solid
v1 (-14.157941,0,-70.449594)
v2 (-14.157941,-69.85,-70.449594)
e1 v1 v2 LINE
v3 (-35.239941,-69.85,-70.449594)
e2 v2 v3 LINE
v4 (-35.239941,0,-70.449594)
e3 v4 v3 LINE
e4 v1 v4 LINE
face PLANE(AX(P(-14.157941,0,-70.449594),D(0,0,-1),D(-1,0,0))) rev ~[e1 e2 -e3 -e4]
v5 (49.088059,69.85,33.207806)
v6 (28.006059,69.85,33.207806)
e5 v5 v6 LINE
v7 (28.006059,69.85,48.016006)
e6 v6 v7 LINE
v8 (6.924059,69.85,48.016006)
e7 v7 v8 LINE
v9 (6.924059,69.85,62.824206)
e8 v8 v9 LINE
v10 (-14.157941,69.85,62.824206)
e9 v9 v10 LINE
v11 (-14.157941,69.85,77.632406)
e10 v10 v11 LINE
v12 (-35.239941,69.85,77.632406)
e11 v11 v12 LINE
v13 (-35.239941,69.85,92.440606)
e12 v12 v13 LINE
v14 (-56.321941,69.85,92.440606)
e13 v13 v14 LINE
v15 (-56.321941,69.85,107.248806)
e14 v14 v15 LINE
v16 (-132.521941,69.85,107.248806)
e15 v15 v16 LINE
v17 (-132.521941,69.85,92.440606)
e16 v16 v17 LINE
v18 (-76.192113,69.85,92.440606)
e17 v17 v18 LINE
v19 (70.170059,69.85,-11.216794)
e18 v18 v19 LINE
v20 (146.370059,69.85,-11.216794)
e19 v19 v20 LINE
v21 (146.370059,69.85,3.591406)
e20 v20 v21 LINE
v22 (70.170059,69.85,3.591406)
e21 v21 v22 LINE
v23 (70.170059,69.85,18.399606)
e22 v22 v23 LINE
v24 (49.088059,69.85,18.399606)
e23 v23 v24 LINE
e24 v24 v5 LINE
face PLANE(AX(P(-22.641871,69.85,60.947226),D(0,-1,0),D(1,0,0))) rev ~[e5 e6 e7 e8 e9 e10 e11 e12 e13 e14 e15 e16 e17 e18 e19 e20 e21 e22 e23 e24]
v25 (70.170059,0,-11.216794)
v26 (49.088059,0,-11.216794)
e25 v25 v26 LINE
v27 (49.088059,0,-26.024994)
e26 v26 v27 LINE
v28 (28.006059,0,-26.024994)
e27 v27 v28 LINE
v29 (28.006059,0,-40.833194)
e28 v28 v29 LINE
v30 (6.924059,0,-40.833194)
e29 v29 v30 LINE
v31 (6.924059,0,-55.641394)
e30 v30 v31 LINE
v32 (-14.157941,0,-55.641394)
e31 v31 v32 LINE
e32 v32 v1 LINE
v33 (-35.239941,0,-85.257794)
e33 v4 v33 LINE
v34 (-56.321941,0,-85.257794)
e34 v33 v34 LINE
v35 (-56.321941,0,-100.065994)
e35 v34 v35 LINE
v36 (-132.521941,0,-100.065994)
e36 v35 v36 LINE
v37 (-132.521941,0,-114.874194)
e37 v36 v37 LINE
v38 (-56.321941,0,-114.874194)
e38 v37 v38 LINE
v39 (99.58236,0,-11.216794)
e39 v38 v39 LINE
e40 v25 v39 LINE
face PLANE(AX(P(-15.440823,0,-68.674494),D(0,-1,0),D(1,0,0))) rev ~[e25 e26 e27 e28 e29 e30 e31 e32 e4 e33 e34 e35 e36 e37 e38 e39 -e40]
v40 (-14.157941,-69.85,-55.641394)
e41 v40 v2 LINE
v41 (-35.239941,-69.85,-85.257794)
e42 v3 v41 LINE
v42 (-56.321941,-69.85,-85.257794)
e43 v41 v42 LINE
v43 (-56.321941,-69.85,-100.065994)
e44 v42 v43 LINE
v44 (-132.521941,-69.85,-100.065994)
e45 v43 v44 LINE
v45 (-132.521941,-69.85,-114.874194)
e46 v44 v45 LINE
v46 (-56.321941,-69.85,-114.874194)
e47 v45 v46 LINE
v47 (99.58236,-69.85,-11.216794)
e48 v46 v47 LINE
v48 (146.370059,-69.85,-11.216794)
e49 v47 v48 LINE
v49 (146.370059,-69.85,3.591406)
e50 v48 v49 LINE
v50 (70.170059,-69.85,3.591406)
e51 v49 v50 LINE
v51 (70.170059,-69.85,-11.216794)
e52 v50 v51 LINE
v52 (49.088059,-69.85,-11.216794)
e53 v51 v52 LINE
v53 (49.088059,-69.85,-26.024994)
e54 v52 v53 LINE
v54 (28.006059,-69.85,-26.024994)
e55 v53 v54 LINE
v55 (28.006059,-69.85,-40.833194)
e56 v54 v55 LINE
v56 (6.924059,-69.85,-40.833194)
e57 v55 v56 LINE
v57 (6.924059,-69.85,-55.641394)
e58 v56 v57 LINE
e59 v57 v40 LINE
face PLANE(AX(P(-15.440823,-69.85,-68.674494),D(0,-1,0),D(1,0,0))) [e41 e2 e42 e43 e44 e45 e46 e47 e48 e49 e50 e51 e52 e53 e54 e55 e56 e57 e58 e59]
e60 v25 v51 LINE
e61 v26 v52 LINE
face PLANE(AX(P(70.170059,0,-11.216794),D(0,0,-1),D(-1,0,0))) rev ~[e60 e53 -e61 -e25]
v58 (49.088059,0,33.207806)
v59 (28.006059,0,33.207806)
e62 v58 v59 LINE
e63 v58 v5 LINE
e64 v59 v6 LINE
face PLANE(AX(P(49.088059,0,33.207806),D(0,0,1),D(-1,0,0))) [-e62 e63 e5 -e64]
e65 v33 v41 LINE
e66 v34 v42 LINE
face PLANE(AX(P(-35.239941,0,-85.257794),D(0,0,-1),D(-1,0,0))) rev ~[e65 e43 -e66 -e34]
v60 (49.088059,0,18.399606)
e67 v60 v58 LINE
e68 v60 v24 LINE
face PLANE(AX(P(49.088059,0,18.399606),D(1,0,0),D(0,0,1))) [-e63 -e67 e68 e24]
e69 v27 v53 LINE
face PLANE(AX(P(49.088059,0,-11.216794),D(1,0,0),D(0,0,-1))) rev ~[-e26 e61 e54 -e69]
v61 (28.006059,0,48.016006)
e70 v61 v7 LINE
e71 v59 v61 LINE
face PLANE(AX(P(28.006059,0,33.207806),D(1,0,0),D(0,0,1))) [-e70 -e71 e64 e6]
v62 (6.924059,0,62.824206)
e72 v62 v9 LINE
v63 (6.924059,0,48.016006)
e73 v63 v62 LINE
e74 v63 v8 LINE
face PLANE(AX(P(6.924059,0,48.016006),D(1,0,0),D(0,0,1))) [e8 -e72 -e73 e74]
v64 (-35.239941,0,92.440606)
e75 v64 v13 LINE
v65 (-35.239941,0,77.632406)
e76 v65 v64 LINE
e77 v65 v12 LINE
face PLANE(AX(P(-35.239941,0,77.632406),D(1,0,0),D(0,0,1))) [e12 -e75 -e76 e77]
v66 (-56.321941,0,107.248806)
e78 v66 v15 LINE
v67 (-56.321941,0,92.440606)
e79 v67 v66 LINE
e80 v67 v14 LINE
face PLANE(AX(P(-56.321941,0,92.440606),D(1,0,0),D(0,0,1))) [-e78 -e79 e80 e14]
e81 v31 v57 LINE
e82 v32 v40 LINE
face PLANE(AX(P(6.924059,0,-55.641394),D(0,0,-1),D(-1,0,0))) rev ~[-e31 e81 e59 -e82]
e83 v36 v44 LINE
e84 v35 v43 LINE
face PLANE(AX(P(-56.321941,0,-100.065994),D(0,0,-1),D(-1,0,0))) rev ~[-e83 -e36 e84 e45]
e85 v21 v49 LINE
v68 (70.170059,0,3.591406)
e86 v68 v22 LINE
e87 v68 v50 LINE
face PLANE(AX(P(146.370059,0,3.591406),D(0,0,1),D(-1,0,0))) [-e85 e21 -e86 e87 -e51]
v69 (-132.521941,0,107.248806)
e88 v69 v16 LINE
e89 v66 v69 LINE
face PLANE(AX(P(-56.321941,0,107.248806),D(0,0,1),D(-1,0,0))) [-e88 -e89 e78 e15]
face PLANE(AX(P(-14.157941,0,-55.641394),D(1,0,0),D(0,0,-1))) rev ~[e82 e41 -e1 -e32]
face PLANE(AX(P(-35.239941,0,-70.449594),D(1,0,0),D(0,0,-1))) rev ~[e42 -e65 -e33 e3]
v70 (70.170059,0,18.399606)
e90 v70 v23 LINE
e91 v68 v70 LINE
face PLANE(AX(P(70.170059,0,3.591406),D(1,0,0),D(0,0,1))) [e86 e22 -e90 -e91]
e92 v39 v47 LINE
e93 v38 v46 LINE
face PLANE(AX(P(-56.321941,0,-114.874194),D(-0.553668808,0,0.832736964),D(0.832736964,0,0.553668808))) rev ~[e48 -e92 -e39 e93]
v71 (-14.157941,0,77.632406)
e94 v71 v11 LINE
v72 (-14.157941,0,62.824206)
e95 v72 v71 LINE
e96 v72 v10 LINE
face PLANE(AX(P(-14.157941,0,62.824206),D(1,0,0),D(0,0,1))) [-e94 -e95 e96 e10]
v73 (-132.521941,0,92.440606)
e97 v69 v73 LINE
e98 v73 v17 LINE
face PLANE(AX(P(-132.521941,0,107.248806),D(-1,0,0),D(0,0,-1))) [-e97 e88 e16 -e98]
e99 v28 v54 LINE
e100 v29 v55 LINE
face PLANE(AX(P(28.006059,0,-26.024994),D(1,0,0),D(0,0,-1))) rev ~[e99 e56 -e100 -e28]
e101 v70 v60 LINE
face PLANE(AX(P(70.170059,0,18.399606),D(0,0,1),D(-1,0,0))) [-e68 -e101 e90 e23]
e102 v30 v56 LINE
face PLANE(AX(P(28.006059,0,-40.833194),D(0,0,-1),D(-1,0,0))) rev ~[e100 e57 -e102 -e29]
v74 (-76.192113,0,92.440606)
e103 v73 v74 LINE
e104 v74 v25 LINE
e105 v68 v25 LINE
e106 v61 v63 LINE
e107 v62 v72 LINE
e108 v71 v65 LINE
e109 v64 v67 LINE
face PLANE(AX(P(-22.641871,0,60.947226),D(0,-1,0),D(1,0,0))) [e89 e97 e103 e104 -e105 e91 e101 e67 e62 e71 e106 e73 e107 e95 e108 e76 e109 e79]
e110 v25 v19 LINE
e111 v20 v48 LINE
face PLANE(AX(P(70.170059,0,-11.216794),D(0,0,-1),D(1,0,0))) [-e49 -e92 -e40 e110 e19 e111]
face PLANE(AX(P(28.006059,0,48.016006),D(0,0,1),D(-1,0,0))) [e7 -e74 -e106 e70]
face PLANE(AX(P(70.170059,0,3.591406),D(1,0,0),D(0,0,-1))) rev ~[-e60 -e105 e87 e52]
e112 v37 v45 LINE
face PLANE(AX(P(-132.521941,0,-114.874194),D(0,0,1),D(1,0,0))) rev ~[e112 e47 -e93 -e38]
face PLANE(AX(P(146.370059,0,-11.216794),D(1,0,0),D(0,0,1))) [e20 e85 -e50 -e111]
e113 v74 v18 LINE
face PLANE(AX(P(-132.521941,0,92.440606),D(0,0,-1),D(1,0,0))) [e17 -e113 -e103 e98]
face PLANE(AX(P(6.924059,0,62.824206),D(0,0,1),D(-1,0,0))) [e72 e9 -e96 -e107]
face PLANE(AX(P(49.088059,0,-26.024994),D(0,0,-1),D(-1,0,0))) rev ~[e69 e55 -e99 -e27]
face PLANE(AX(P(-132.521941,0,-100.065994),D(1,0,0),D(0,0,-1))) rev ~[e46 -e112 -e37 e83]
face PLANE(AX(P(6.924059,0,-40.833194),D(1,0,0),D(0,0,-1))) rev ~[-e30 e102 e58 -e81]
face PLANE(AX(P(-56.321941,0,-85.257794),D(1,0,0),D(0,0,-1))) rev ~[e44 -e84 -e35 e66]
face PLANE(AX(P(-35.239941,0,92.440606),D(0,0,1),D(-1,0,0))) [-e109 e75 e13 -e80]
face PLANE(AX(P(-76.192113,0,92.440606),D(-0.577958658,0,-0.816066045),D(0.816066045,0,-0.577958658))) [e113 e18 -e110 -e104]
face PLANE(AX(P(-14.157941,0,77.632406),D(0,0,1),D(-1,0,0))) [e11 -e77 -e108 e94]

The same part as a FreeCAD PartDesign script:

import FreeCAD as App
import Part
import Sketcher
Q = App.Units.Quantity


def add_polygon(sketch, points):
    """Adds a closed chain of lines whose ends are joined by coincident constraints."""
    first, n = sketch.GeometryCount, len(points)
    for a, b in zip(points, points[1:] + points[:1]):
        sketch.addGeometry(Part.LineSegment(App.Vector(*a, 0), App.Vector(*b, 0)), False)
    for i in range(n):
        sketch.addConstraint(Sketcher.Constraint("Coincident", first + i, 2, first + (i + 1) % n, 1))

doc = App.newDocument("Part")
body = doc.addObject("PartDesign::Body", "Body")

sketch1 = doc.addObject("Sketcher::SketchObject", "Sketch")
body.addObject(sketch1)
sketch1.AttachmentSupport = (doc.XZ_Plane, [""])
sketch1.MapMode = "FlatFace"
add_polygon(sketch1, [(-132.521941, -100.065994), (-132.521941, -114.874194), (-56.321941, -114.874194), (99.58236, -11.216794), (146.370059, -11.216794), (146.370059, 3.591406), (70.170059, 3.591406), (70.170059, -11.216794), (49.088059, -11.216794), (49.088059, -26.024994), (28.006059, -26.024994), (28.006059, -40.833194), (6.924059, -40.833194), (6.924059, -55.641394), (-14.157941, -55.641394), (-14.157941, -70.449594), (-35.239941, -70.449594), (-35.239941, -85.257794), (-56.321941, -85.257794), (-56.321941, -100.065994)])
sketch1.addConstraint([
    Sketcher.Constraint("Vertical", 0),
    Sketcher.Constraint("Horizontal", 1),
    Sketcher.Constraint("Horizontal", 3),
    Sketcher.Constraint("Vertical", 4),
    Sketcher.Constraint("Horizontal", 5),
    Sketcher.Constraint("Vertical", 6),
    Sketcher.Constraint("Horizontal", 7),
    Sketcher.Constraint("Vertical", 8),
    Sketcher.Constraint("Horizontal", 9),
    Sketcher.Constraint("Vertical", 10),
    Sketcher.Constraint("Horizontal", 11),
    Sketcher.Constraint("Vertical", 12),
    Sketcher.Constraint("Horizontal", 13),
    Sketcher.Constraint("Vertical", 14),
    Sketcher.Constraint("Horizontal", 15),
    Sketcher.Constraint("Vertical", 16),
    Sketcher.Constraint("Horizontal", 17),
    Sketcher.Constraint("Vertical", 18),
    Sketcher.Constraint("Horizontal", 19),
    Sketcher.Constraint("Horizontal", 3, 2, 6, 2),
    Sketcher.Constraint("Vertical", 1, 2, 17, 2),
    Sketcher.Constraint("Equal", 1, 5),
    Sketcher.Constraint("Equal", 7, 9),
    Sketcher.Constraint("Equal", 9, 11),
    Sketcher.Constraint("Equal", 11, 13),
    Sketcher.Constraint("Equal", 13, 15),
    Sketcher.Constraint("Equal", 15, 17),
    Sketcher.Constraint("Equal", 0, 4),
    Sketcher.Constraint("Equal", 6, 8),
    Sketcher.Constraint("Equal", 8, 10),
    Sketcher.Constraint("Equal", 10, 12),
    Sketcher.Constraint("Equal", 12, 14),
    Sketcher.Constraint("Equal", 14, 16),
    Sketcher.Constraint("Equal", 16, 18),
    Sketcher.Constraint("DistanceX", 1, 1, 1, 2, Q("3 in")),
    Sketcher.Constraint("DistanceX", 7, 2, 7, 1, Q("0.83 in")),
    Sketcher.Constraint("DistanceY", 0, 2, 0, 1, Q("0.583 in")),
    Sketcher.Constraint("DistanceX", 3, 1, 3, 2, Q("46.787699 mm")),
    Sketcher.Constraint("DistanceX", 0, 2, -1, 1, Q("132.521941 mm")),
    Sketcher.Constraint("DistanceY", 0, 2, -1, 1, Q("114.874194 mm")),
])
pad1 = doc.addObject("PartDesign::Pad", "Pad")
body.addObject(pad1)
pad1.Profile = sketch1
pad1.Length = Q("2.75 in")

sketch2 = doc.addObject("Sketcher::SketchObject", "Sketch001")
body.addObject(sketch2)
sketch2.AttachmentSupport = (doc.XZ_Plane, [""])
sketch2.MapMode = "FlatFace"
add_polygon(sketch2, [(-76.192113, 92.440606), (70.170059, -11.216794), (146.370059, -11.216794), (146.370059, 3.591406), (70.170059, 3.591406), (70.170059, 18.399606), (49.088059, 18.399606), (49.088059, 33.207806), (28.006059, 33.207806), (28.006059, 48.016006), (6.924059, 48.016006), (6.924059, 62.824206), (-14.157941, 62.824206), (-14.157941, 77.632406), (-35.239941, 77.632406), (-35.239941, 92.440606), (-56.321941, 92.440606), (-56.321941, 107.248806), (-132.521941, 107.248806), (-132.521941, 92.440606)])
sketch2.addConstraint([
    Sketcher.Constraint("Horizontal", 1),
    Sketcher.Constraint("Vertical", 2),
    Sketcher.Constraint("Horizontal", 3),
    Sketcher.Constraint("Vertical", 4),
    Sketcher.Constraint("Horizontal", 5),
    Sketcher.Constraint("Vertical", 6),
    Sketcher.Constraint("Horizontal", 7),
    Sketcher.Constraint("Vertical", 8),
    Sketcher.Constraint("Horizontal", 9),
    Sketcher.Constraint("Vertical", 10),
    Sketcher.Constraint("Horizontal", 11),
    Sketcher.Constraint("Vertical", 12),
    Sketcher.Constraint("Horizontal", 13),
    Sketcher.Constraint("Vertical", 14),
    Sketcher.Constraint("Horizontal", 15),
    Sketcher.Constraint("Vertical", 16),
    Sketcher.Constraint("Horizontal", 17),
    Sketcher.Constraint("Vertical", 18),
    Sketcher.Constraint("Horizontal", 19),
    Sketcher.Constraint("Horizontal", 15, 2, 18, 2),
    Sketcher.Constraint("Vertical", 0, 2, 3, 2),
    Sketcher.Constraint("Equal", 5, 7),
    Sketcher.Constraint("Equal", 7, 9),
    Sketcher.Constraint("Equal", 9, 11),
    Sketcher.Constraint("Equal", 11, 13),
    Sketcher.Constraint("Equal", 13, 15),
    Sketcher.Constraint("Equal", 3, 17),
    Sketcher.Constraint("Equal", 2, 4),
    Sketcher.Constraint("Equal", 4, 6),
    Sketcher.Constraint("Equal", 6, 8),
    Sketcher.Constraint("Equal", 8, 10),
    Sketcher.Constraint("Equal", 10, 12),
    Sketcher.Constraint("Equal", 12, 14),
    Sketcher.Constraint("Equal", 14, 16),
    Sketcher.Constraint("DistanceX", 1, 1, 1, 2, Q("3 in")),
    Sketcher.Constraint("DistanceX", 5, 2, 5, 1, Q("0.83 in")),
    Sketcher.Constraint("DistanceY", 2, 1, 2, 2, Q("0.583 in")),
    Sketcher.Constraint("Distance", 0, Q("179.350891 mm")),
    Sketcher.Constraint("DistanceX", -1, 1, 0, 2, Q("70.170059 mm")),
    Sketcher.Constraint("DistanceY", 0, 2, -1, 1, Q("11.216794 mm")),
])
pad2 = doc.addObject("PartDesign::Pad", "Pad001")
body.addObject(pad2)
pad2.Profile = sketch2
pad2.Length = Q("2.75 in")
pad2.Reversed = True

doc.recompute()
